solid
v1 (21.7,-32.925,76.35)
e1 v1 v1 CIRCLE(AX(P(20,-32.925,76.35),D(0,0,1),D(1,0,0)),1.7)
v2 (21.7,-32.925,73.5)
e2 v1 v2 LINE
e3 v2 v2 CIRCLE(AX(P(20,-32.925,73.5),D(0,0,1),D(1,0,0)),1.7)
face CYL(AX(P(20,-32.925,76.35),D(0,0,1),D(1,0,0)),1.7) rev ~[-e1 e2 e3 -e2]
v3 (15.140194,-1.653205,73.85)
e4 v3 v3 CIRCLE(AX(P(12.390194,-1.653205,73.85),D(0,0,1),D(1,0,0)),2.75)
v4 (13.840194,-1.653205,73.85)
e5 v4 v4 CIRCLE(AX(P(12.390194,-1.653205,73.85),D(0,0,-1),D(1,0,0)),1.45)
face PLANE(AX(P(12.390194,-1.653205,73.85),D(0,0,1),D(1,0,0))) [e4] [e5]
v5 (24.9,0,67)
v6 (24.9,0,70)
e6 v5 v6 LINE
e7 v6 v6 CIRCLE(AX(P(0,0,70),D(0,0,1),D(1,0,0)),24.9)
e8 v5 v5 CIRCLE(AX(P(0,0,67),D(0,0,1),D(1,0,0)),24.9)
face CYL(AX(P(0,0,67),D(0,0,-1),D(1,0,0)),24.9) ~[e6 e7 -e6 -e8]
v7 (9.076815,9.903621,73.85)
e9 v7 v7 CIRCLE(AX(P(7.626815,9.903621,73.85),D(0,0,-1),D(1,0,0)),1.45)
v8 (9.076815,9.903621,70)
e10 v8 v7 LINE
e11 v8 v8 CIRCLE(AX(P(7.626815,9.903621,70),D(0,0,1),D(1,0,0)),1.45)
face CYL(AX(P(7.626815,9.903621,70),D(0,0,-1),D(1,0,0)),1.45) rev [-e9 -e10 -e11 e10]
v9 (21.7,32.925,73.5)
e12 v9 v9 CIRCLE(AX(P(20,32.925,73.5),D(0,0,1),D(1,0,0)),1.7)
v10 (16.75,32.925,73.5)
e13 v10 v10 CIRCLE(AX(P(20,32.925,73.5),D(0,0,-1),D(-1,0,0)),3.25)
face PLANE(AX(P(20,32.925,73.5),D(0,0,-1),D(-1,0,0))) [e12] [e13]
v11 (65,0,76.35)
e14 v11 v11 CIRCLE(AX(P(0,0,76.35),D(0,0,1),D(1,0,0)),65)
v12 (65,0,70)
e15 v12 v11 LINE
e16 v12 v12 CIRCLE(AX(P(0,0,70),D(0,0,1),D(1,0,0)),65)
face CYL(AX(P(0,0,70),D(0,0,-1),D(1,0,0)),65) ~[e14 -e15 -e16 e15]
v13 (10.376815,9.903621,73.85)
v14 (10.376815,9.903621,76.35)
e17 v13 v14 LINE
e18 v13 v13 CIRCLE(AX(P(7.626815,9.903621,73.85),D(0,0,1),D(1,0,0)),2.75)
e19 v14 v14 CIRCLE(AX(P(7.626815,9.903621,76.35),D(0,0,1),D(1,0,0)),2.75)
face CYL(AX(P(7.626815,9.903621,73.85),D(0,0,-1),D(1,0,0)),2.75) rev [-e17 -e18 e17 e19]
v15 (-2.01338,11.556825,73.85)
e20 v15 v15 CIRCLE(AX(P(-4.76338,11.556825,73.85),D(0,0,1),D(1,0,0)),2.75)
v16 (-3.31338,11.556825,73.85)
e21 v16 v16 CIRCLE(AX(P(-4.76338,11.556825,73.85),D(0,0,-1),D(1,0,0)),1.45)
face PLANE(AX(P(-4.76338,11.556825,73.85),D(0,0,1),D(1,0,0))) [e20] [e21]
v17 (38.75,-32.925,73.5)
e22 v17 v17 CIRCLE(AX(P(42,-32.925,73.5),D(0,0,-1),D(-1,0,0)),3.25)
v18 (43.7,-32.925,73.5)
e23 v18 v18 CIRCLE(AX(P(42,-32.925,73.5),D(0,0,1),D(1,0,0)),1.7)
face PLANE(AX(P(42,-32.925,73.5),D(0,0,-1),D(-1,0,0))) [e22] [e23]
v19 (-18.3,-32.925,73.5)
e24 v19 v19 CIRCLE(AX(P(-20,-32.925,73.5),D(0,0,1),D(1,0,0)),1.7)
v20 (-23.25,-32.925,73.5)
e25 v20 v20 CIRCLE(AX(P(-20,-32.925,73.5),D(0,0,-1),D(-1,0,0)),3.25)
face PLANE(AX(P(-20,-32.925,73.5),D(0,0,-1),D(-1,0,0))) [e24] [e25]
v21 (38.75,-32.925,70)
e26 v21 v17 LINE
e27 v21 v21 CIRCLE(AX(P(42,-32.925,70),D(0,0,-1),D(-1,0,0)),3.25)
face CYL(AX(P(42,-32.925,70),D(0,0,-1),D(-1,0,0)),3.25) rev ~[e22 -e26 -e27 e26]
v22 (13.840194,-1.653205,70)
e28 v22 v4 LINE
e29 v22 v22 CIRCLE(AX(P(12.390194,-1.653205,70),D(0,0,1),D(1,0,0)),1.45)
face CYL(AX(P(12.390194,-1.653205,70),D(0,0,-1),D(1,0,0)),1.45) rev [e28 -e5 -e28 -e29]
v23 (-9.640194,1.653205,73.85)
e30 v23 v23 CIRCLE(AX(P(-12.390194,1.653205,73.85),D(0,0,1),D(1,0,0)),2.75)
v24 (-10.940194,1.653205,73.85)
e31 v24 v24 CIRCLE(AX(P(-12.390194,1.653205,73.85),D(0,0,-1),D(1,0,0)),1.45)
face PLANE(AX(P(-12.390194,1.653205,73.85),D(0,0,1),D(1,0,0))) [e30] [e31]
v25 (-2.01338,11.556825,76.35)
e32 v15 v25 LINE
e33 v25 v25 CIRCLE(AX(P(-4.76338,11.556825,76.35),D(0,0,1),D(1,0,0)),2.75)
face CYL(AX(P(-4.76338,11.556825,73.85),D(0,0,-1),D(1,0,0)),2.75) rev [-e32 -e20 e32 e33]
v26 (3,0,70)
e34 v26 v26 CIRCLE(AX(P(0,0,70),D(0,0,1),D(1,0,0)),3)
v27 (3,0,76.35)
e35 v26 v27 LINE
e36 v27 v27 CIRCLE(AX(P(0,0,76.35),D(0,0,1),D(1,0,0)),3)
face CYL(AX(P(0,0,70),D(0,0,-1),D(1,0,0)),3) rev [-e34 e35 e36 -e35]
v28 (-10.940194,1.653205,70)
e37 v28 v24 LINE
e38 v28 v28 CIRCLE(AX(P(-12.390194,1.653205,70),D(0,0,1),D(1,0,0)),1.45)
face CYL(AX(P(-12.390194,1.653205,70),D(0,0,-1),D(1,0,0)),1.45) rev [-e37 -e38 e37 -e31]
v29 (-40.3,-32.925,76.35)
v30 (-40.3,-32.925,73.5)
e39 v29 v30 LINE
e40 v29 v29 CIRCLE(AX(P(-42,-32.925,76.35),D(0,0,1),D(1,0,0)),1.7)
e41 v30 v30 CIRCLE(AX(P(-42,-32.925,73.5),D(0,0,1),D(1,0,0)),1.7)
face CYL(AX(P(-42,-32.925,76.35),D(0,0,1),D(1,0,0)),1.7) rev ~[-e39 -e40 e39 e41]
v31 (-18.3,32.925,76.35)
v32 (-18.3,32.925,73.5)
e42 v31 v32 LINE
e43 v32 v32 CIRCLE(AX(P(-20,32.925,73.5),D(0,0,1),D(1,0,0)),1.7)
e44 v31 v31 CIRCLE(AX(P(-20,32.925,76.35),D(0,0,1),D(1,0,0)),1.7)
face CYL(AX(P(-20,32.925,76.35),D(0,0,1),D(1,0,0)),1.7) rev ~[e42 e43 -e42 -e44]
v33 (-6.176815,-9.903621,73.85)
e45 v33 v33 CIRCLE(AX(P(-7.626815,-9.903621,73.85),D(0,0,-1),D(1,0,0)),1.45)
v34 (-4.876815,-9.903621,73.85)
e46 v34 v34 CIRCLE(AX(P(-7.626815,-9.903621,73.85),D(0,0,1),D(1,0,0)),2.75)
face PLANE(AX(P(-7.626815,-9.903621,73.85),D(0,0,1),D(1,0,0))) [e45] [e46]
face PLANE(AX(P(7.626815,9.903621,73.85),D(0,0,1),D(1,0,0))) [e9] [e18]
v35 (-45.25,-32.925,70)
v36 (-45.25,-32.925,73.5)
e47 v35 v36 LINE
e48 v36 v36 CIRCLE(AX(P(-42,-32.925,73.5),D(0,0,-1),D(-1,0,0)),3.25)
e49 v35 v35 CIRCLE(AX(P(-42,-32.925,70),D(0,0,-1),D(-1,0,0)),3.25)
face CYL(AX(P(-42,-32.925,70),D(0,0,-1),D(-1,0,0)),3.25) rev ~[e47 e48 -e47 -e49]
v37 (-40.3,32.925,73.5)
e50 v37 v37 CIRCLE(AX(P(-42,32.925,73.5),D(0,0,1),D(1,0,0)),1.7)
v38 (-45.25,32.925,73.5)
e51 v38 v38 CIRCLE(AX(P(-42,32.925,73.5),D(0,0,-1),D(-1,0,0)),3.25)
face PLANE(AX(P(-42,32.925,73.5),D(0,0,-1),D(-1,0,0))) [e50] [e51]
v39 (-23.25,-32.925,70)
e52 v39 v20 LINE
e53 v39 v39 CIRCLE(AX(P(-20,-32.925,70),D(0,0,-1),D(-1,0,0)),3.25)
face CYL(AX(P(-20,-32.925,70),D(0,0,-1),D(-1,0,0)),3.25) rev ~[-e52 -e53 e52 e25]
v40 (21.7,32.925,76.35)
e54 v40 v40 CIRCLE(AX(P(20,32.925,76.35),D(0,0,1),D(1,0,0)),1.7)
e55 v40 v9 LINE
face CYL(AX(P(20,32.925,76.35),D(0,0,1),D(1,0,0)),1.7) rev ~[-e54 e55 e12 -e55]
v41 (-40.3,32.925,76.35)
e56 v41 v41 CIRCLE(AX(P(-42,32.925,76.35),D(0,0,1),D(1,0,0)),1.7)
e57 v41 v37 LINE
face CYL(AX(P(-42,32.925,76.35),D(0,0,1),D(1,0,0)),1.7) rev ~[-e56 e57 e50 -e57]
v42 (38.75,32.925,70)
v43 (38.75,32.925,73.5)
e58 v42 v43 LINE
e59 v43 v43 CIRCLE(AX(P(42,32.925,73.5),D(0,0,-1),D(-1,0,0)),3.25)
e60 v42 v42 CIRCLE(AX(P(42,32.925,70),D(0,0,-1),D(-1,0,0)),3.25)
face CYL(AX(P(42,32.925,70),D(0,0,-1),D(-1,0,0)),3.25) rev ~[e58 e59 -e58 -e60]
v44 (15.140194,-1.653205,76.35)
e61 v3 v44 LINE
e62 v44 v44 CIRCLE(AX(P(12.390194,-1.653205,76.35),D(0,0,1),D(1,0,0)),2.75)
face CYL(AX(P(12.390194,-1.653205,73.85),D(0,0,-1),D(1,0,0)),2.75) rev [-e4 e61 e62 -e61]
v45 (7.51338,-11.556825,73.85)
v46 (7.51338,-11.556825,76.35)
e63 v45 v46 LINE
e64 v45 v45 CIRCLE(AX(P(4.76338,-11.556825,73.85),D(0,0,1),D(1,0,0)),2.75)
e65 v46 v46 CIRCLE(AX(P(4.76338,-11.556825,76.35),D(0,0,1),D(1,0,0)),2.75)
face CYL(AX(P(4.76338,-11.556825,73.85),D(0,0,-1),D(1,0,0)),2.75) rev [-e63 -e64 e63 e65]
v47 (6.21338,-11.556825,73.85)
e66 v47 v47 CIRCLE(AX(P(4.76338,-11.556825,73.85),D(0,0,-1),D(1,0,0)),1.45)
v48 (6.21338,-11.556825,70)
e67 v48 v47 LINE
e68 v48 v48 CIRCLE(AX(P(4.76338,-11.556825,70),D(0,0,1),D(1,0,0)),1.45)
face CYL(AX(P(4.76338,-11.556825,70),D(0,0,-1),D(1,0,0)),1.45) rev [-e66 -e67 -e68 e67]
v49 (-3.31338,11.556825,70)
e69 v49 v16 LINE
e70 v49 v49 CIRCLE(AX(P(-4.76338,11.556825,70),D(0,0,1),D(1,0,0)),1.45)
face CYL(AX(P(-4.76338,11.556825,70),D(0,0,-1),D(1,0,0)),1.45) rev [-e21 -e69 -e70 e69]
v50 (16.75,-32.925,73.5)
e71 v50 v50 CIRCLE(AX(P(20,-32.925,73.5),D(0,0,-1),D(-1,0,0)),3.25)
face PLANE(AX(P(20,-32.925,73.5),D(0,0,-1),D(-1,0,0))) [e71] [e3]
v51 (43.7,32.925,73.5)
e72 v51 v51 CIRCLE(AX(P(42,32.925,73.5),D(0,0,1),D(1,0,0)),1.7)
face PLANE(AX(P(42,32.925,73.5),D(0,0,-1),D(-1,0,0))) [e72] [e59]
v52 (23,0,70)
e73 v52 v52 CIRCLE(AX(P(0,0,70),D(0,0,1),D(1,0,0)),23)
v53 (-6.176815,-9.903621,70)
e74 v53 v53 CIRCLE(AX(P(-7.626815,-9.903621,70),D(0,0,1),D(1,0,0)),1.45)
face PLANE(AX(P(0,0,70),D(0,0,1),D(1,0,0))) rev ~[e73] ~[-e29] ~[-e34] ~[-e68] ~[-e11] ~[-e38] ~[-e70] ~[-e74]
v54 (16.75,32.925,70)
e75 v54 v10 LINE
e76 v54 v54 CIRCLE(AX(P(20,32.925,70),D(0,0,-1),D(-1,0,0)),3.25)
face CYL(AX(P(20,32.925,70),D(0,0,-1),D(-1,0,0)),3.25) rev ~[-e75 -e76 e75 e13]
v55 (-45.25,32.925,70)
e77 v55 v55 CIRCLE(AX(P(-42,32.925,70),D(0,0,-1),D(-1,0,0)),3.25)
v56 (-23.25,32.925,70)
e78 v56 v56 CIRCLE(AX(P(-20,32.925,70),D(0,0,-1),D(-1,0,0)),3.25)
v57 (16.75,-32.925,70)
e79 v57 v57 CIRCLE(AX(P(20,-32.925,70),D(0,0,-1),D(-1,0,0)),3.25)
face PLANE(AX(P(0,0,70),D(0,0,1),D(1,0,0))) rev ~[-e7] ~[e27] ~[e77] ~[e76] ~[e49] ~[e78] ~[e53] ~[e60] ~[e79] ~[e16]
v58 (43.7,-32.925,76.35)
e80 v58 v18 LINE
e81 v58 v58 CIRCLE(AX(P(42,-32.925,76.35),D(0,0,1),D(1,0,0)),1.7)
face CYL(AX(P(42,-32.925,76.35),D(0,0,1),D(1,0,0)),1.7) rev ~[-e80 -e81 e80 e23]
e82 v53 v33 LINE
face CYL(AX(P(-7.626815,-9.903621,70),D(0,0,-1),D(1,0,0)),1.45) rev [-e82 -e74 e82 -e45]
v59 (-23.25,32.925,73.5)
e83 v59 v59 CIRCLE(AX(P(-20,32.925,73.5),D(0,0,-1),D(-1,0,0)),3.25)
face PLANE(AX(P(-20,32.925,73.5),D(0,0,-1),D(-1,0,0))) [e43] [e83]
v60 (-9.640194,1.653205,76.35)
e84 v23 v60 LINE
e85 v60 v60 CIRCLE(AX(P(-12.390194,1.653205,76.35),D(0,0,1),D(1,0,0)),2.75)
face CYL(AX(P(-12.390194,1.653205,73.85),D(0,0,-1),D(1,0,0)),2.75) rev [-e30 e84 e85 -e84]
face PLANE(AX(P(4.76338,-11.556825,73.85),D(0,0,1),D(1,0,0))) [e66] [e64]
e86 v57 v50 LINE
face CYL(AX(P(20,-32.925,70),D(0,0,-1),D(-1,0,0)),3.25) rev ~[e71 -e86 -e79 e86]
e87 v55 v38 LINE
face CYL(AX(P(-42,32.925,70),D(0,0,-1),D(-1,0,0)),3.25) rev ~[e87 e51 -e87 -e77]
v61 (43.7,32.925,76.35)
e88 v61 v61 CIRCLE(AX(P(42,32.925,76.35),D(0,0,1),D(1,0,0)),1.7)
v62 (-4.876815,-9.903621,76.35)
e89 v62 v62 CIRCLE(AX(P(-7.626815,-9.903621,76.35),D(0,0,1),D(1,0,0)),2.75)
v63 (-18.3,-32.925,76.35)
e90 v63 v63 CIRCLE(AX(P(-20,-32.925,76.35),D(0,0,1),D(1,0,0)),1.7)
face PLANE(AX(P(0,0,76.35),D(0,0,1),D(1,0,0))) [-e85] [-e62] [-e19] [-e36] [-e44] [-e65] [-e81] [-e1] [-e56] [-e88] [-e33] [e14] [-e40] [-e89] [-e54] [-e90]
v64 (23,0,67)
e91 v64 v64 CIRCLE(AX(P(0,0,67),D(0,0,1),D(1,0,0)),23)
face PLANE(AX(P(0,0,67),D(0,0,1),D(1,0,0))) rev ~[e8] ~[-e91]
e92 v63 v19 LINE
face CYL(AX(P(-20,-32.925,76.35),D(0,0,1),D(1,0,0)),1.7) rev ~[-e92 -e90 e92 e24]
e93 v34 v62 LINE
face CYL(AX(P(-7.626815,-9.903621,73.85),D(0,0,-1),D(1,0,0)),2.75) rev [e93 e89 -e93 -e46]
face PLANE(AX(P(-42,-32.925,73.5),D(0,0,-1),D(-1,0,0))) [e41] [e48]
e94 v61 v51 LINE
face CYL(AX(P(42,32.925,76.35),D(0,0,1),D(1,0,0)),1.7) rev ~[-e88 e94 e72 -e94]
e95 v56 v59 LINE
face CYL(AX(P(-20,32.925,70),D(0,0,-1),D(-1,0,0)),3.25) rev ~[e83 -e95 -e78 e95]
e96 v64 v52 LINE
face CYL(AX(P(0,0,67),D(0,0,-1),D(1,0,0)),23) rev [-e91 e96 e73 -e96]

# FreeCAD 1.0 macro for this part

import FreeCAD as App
import Part
import Sketcher
from FreeCAD import Vector

doc = App.newDocument("Part")
params = doc.addObject("Spreadsheet::Sheet", "Params")
for row, (alias, value) in enumerate([
    ("sketch1_diameter", "130 mm"),
    ("pad1_length", "6.35 mm"),
    ("sketch2_diameter", "46 mm"),
    ("sketch2_diameter2", "49.8 mm"),
    ("pad2_length", "3 mm"),
    ("sketch3_diameter", "2.9 mm"),
    ("pocket1_length", "6.35 mm"),
    ("sketch4_diameter", "5.5 mm"),
    ("pocket2_length", "2.5 mm"),
    ("sketch5_diameter", "6 mm"),
    ("pocket3_length", "6.35 mm"),
    ("sketch6_diameter", "3.4 mm"),
    ("sketch7_diameter", "6.5 mm"),
    ("pocket5_length", "3.5 mm"),
], start=1):
    params.set(f"A{row}", alias)
    params.set(f"B{row}", "=" + value)
    params.setAlias(f"B{row}", alias)

body = doc.addObject("PartDesign::Body", "Body")

# Sketch on XY plane
sketch1 = body.newObject("Sketcher::SketchObject", "Sketch")
sketch1.AttachmentSupport = (doc.getObject("XY_Plane"), [""])
sketch1.MapMode = "FlatFace"
sketch1.AttachmentOffset = App.Placement(Vector(0, 0, 70), App.Rotation())
sketch1.addGeometry(Part.Circle(Vector(0, 0, 0), Vector(0, 0, 1), 65), False)
sketch1.addConstraint(Sketcher.Constraint("Coincident", 0, 3, -1, 1))
sketch1.addConstraint(Sketcher.Constraint("Diameter", 0, 130.0))
sketch1.setExpression("Constraints[1]", "Params.sketch1_diameter")
pad1 = body.newObject("PartDesign::Pad", "Pad")
pad1.Profile = sketch1
pad1.setExpression("Length", "Params.pad1_length")

# Sketch on XY plane
sketch2 = body.newObject("Sketcher::SketchObject", "Sketch001")
sketch2.AttachmentSupport = (doc.getObject("XY_Plane"), [""])
sketch2.MapMode = "FlatFace"
sketch2.AttachmentOffset = App.Placement(Vector(0, 0, 67), App.Rotation())
sketch2.addGeometry(Part.Circle(Vector(0, 0, 0), Vector(0, 0, 1), 24.9), False)
sketch2.addGeometry(Part.Circle(Vector(0, 0, 0), Vector(0, 0, 1), 23), False)
sketch2.addConstraint(Sketcher.Constraint("Coincident", 0, 3, -1, 1))
sketch2.addConstraint(Sketcher.Constraint("Coincident", 1, 3, -1, 1))
sketch2.addConstraint(Sketcher.Constraint("Diameter", 1, 46.0))
sketch2.addConstraint(Sketcher.Constraint("Diameter", 0, 49.8))
sketch2.setExpression("Constraints[2]", "Params.sketch2_diameter")
sketch2.setExpression("Constraints[3]", "Params.sketch2_diameter2")
pad2 = body.newObject("PartDesign::Pad", "Pad001")
pad2.Profile = sketch2
pad2.setExpression("Length", "Params.pad2_length")

# Sketch on XY plane
sketch3 = body.newObject("Sketcher::SketchObject", "Sketch002")
sketch3.AttachmentSupport = (doc.getObject("XY_Plane"), [""])
sketch3.MapMode = "FlatFace"
sketch3.AttachmentOffset = App.Placement(Vector(0, 0, 70), App.Rotation())
sketch3.addGeometry(Part.Circle(Vector(12.390194, -1.653205, 0), Vector(0, 0, 1), 1.45), False)
sketch3.addGeometry(Part.Circle(Vector(7.626815, 9.903621, 0), Vector(0, 0, 1), 1.45), False)
sketch3.addGeometry(Part.Circle(Vector(-4.76338, 11.556825, 0), Vector(0, 0, 1), 1.45), False)
sketch3.addGeometry(Part.Circle(Vector(-12.390194, 1.653205, 0), Vector(0, 0, 1), 1.45), False)
sketch3.addGeometry(Part.Circle(Vector(-7.626815, -9.903621, 0), Vector(0, 0, 1), 1.45), False)
sketch3.addGeometry(Part.Circle(Vector(4.76338, -11.556825, 0), Vector(0, 0, 1), 1.45), False)
sketch3.addConstraint(Sketcher.Constraint("Equal", 0, 1))
sketch3.addConstraint(Sketcher.Constraint("Equal", 1, 2))
sketch3.addConstraint(Sketcher.Constraint("Equal", 2, 3))
sketch3.addConstraint(Sketcher.Constraint("Equal", 3, 4))
sketch3.addConstraint(Sketcher.Constraint("Equal", 4, 5))
sketch3.addConstraint(Sketcher.Constraint("Symmetric", 0, 3, 3, 3, -1, 1))
sketch3.addConstraint(Sketcher.Constraint("Symmetric", 1, 3, 4, 3, -1, 1))
sketch3.addConstraint(Sketcher.Constraint("Symmetric", 2, 3, 5, 3, -1, 1))
sketch3.addConstraint(Sketcher.Constraint("Diameter", 0, 2.9))
sketch3.addConstraint(Sketcher.Constraint("DistanceY", -1, 1, 1, 3, 9.903621))
sketch3.addConstraint(Sketcher.Constraint("DistanceX", 2, 3, -1, 1, 4.76338))
sketch3.addConstraint(Sketcher.Constraint("DistanceX", 1, 3, 0, 3, 4.76338))
sketch3.addConstraint(Sketcher.Constraint("DistanceY", 0, 3, 2, 3, 13.21003))
sketch3.addConstraint(Sketcher.Constraint("DistanceY", 3, 3, 2, 3, 9.903621))
sketch3.addConstraint(Sketcher.Constraint("DistanceX", 3, 3, 1, 3, 20.017009))
sketch3.setExpression("Constraints[8]", "Params.sketch3_diameter")
pocket1 = body.newObject("PartDesign::Pocket", "Pocket")
pocket1.Profile = sketch3
pocket1.setExpression("Length", "Params.pocket1_length")
pocket1.Reversed = True

# Sketch on XY plane
sketch4 = body.newObject("Sketcher::SketchObject", "Sketch003")
sketch4.AttachmentSupport = (doc.getObject("XY_Plane"), [""])
sketch4.MapMode = "FlatFace"
sketch4.AttachmentOffset = App.Placement(Vector(0, 0, 73.85), App.Rotation())
sketch4.addGeometry(Part.Circle(Vector(12.390194, -1.653205, 0), Vector(0, 0, 1), 2.75), False)
sketch4.addGeometry(Part.Circle(Vector(7.626815, 9.903621, 0), Vector(0, 0, 1), 2.75), False)
sketch4.addGeometry(Part.Circle(Vector(-4.76338, 11.556825, 0), Vector(0, 0, 1), 2.75), False)
sketch4.addGeometry(Part.Circle(Vector(-12.390194, 1.653205, 0), Vector(0, 0, 1), 2.75), False)
sketch4.addGeometry(Part.Circle(Vector(-7.626815, -9.903621, 0), Vector(0, 0, 1), 2.75), False)
sketch4.addGeometry(Part.Circle(Vector(4.76338, -11.556825, 0), Vector(0, 0, 1), 2.75), False)
sketch4.addConstraint(Sketcher.Constraint("Equal", 0, 1))
sketch4.addConstraint(Sketcher.Constraint("Equal", 1, 2))
sketch4.addConstraint(Sketcher.Constraint("Equal", 2, 3))
sketch4.addConstraint(Sketcher.Constraint("Equal", 3, 4))
sketch4.addConstraint(Sketcher.Constraint("Equal", 4, 5))
sketch4.addConstraint(Sketcher.Constraint("Symmetric", 0, 3, 3, 3, -1, 1))
sketch4.addConstraint(Sketcher.Constraint("Symmetric", 1, 3, 4, 3, -1, 1))
sketch4.addConstraint(Sketcher.Constraint("Symmetric", 2, 3, 5, 3, -1, 1))
sketch4.addConstraint(Sketcher.Constraint("Diameter", 0, 5.5))
sketch4.addConstraint(Sketcher.Constraint("DistanceY", -1, 1, 1, 3, 9.903621))
sketch4.addConstraint(Sketcher.Constraint("DistanceX", 2, 3, -1, 1, 4.76338))
sketch4.addConstraint(Sketcher.Constraint("DistanceX", 1, 3, 0, 3, 4.76338))
sketch4.addConstraint(Sketcher.Constraint("DistanceY", 0, 3, 2, 3, 13.21003))
sketch4.addConstraint(Sketcher.Constraint("DistanceY", 3, 3, 2, 3, 9.903621))
sketch4.addConstraint(Sketcher.Constraint("DistanceX", 3, 3, 1, 3, 20.017009))
sketch4.setExpression("Constraints[8]", "Params.sketch4_diameter")
pocket2 = body.newObject("PartDesign::Pocket", "Pocket001")
pocket2.Profile = sketch4
pocket2.setExpression("Length", "Params.pocket2_length")
pocket2.Reversed = True

# Sketch on XY plane
sketch5 = body.newObject("Sketcher::SketchObject", "Sketch004")
sketch5.AttachmentSupport = (doc.getObject("XY_Plane"), [""])
sketch5.MapMode = "FlatFace"
sketch5.AttachmentOffset = App.Placement(Vector(0, 0, 70), App.Rotation())
sketch5.addGeometry(Part.Circle(Vector(0, 0, 0), Vector(0, 0, 1), 3), False)
sketch5.addConstraint(Sketcher.Constraint("Coincident", 0, 3, -1, 1))
sketch5.addConstraint(Sketcher.Constraint("Diameter", 0, 6.0))
sketch5.setExpression("Constraints[1]", "Params.sketch5_diameter")
pocket3 = body.newObject("PartDesign::Pocket", "Pocket002")
pocket3.Profile = sketch5
pocket3.setExpression("Length", "Params.pocket3_length")
pocket3.Reversed = True

# Sketch on XY plane
sketch6 = body.newObject("Sketcher::SketchObject", "Sketch005")
sketch6.AttachmentSupport = (doc.getObject("XY_Plane"), [""])
sketch6.MapMode = "FlatFace"
sketch6.AttachmentOffset = App.Placement(Vector(0, 0, 76.35), App.Rotation())
sketch6.addGeometry(Part.Circle(Vector(-42, -32.925, 0), Vector(0, 0, 1), 1.7), False)
sketch6.addGeometry(Part.Circle(Vector(-20, -32.925, 0), Vector(0, 0, 1), 1.7), False)
sketch6.addGeometry(Part.Circle(Vector(20, -32.925, 0), Vector(0, 0, 1), 1.7), False)
sketch6.addGeometry(Part.Circle(Vector(42, -32.925, 0), Vector(0, 0, 1), 1.7), False)
sketch6.addGeometry(Part.Circle(Vector(-42, 32.925, 0), Vector(0, 0, 1), 1.7), False)
sketch6.addGeometry(Part.Circle(Vector(-20, 32.925, 0), Vector(0, 0, 1), 1.7), False)
sketch6.addGeometry(Part.Circle(Vector(20, 32.925, 0), Vector(0, 0, 1), 1.7), False)
sketch6.addGeometry(Part.Circle(Vector(42, 32.925, 0), Vector(0, 0, 1), 1.7), False)
sketch6.addConstraint(Sketcher.Constraint("Equal", 0, 1))
sketch6.addConstraint(Sketcher.Constraint("Equal", 1, 2))
sketch6.addConstraint(Sketcher.Constraint("Equal", 2, 3))
sketch6.addConstraint(Sketcher.Constraint("Equal", 3, 4))
sketch6.addConstraint(Sketcher.Constraint("Equal", 4, 5))
sketch6.addConstraint(Sketcher.Constraint("Equal", 5, 6))
sketch6.addConstraint(Sketcher.Constraint("Equal", 6, 7))
sketch6.addConstraint(Sketcher.Constraint("Symmetric", 3, 3, 4, 3, -1, 1))
sketch6.addConstraint(Sketcher.Constraint("Symmetric", 2, 3, 5, 3, -1, 1))
sketch6.addConstraint(Sketcher.Constraint("Symmetric", 1, 3, 6, 3, -1, 1))
sketch6.addConstraint(Sketcher.Constraint("Symmetric", 0, 3, 7, 3, -1, 1))
sketch6.addConstraint(Sketcher.Constraint("Symmetric", 1, 3, 2, 3, -2))
sketch6.addConstraint(Sketcher.Constraint("Symmetric", 0, 3, 3, 3, -2))
sketch6.addConstraint(Sketcher.Constraint("Horizontal", 0, 3, 1, 3))
sketch6.addConstraint(Sketcher.Constraint("Diameter", 0, 3.4))
sketch6.addConstraint(Sketcher.Constraint("DistanceX", 0, 3, -1, 1, 42.0))
sketch6.addConstraint(Sketcher.Constraint("DistanceX", 1, 3, -1, 1, 20.0))
sketch6.addConstraint(Sketcher.Constraint("DistanceY", 0, 3, 4, 3, 65.85))
sketch6.setExpression("Constraints[14]", "Params.sketch6_diameter")
pocket4 = body.newObject("PartDesign::Pocket", "Pocket003")
pocket4.Profile = sketch6
pocket4.Type = "ThroughAll"

# Sketch on XY plane
sketch7 = body.newObject("Sketcher::SketchObject", "Sketch006")
sketch7.AttachmentSupport = (doc.getObject("XY_Plane"), [""])
sketch7.MapMode = "FlatFace"
sketch7.AttachmentOffset = App.Placement(Vector(0, 0, 70), App.Rotation())
sketch7.addGeometry(Part.Circle(Vector(-42, -32.925, 0), Vector(0, 0, 1), 3.25), False)
sketch7.addGeometry(Part.Circle(Vector(-20, -32.925, 0), Vector(0, 0, 1), 3.25), False)
sketch7.addGeometry(Part.Circle(Vector(20, -32.925, 0), Vector(0, 0, 1), 3.25), False)
sketch7.addGeometry(Part.Circle(Vector(42, -32.925, 0), Vector(0, 0, 1), 3.25), False)
sketch7.addGeometry(Part.Circle(Vector(-42, 32.925, 0), Vector(0, 0, 1), 3.25), False)
sketch7.addGeometry(Part.Circle(Vector(-20, 32.925, 0), Vector(0, 0, 1), 3.25), False)
sketch7.addGeometry(Part.Circle(Vector(20, 32.925, 0), Vector(0, 0, 1), 3.25), False)
sketch7.addGeometry(Part.Circle(Vector(42, 32.925, 0), Vector(0, 0, 1), 3.25), False)
sketch7.addConstraint(Sketcher.Constraint("Equal", 0, 1))
sketch7.addConstraint(Sketcher.Constraint("Equal", 1, 2))
sketch7.addConstraint(Sketcher.Constraint("Equal", 2, 3))
sketch7.addConstraint(Sketcher.Constraint("Equal", 3, 4))
sketch7.addConstraint(Sketcher.Constraint("Equal", 4, 5))
sketch7.addConstraint(Sketcher.Constraint("Equal", 5, 6))
sketch7.addConstraint(Sketcher.Constraint("Equal", 6, 7))
sketch7.addConstraint(Sketcher.Constraint("Symmetric", 3, 3, 4, 3, -1, 1))
sketch7.addConstraint(Sketcher.Constraint("Symmetric", 2, 3, 5, 3, -1, 1))
sketch7.addConstraint(Sketcher.Constraint("Symmetric", 1, 3, 6, 3, -1, 1))
sketch7.addConstraint(Sketcher.Constraint("Symmetric", 0, 3, 7, 3, -1, 1))
sketch7.addConstraint(Sketcher.Constraint("Symmetric", 1, 3, 2, 3, -2))
sketch7.addConstraint(Sketcher.Constraint("Symmetric", 0, 3, 3, 3, -2))
sketch7.addConstraint(Sketcher.Constraint("Horizontal", 0, 3, 1, 3))
sketch7.addConstraint(Sketcher.Constraint("Diameter", 0, 6.5))
sketch7.addConstraint(Sketcher.Constraint("DistanceX", 0, 3, -1, 1, 42.0))
sketch7.addConstraint(Sketcher.Constraint("DistanceX", 1, 3, -1, 1, 20.0))
sketch7.addConstraint(Sketcher.Constraint("DistanceY", 0, 3, 4, 3, 65.85))
sketch7.setExpression("Constraints[14]", "Params.sketch7_diameter")
pocket5 = body.newObject("PartDesign::Pocket", "Pocket004")
pocket5.Profile = sketch7
pocket5.setExpression("Length", "Params.pocket5_length")
pocket5.Reversed = True

doc.recompute()
